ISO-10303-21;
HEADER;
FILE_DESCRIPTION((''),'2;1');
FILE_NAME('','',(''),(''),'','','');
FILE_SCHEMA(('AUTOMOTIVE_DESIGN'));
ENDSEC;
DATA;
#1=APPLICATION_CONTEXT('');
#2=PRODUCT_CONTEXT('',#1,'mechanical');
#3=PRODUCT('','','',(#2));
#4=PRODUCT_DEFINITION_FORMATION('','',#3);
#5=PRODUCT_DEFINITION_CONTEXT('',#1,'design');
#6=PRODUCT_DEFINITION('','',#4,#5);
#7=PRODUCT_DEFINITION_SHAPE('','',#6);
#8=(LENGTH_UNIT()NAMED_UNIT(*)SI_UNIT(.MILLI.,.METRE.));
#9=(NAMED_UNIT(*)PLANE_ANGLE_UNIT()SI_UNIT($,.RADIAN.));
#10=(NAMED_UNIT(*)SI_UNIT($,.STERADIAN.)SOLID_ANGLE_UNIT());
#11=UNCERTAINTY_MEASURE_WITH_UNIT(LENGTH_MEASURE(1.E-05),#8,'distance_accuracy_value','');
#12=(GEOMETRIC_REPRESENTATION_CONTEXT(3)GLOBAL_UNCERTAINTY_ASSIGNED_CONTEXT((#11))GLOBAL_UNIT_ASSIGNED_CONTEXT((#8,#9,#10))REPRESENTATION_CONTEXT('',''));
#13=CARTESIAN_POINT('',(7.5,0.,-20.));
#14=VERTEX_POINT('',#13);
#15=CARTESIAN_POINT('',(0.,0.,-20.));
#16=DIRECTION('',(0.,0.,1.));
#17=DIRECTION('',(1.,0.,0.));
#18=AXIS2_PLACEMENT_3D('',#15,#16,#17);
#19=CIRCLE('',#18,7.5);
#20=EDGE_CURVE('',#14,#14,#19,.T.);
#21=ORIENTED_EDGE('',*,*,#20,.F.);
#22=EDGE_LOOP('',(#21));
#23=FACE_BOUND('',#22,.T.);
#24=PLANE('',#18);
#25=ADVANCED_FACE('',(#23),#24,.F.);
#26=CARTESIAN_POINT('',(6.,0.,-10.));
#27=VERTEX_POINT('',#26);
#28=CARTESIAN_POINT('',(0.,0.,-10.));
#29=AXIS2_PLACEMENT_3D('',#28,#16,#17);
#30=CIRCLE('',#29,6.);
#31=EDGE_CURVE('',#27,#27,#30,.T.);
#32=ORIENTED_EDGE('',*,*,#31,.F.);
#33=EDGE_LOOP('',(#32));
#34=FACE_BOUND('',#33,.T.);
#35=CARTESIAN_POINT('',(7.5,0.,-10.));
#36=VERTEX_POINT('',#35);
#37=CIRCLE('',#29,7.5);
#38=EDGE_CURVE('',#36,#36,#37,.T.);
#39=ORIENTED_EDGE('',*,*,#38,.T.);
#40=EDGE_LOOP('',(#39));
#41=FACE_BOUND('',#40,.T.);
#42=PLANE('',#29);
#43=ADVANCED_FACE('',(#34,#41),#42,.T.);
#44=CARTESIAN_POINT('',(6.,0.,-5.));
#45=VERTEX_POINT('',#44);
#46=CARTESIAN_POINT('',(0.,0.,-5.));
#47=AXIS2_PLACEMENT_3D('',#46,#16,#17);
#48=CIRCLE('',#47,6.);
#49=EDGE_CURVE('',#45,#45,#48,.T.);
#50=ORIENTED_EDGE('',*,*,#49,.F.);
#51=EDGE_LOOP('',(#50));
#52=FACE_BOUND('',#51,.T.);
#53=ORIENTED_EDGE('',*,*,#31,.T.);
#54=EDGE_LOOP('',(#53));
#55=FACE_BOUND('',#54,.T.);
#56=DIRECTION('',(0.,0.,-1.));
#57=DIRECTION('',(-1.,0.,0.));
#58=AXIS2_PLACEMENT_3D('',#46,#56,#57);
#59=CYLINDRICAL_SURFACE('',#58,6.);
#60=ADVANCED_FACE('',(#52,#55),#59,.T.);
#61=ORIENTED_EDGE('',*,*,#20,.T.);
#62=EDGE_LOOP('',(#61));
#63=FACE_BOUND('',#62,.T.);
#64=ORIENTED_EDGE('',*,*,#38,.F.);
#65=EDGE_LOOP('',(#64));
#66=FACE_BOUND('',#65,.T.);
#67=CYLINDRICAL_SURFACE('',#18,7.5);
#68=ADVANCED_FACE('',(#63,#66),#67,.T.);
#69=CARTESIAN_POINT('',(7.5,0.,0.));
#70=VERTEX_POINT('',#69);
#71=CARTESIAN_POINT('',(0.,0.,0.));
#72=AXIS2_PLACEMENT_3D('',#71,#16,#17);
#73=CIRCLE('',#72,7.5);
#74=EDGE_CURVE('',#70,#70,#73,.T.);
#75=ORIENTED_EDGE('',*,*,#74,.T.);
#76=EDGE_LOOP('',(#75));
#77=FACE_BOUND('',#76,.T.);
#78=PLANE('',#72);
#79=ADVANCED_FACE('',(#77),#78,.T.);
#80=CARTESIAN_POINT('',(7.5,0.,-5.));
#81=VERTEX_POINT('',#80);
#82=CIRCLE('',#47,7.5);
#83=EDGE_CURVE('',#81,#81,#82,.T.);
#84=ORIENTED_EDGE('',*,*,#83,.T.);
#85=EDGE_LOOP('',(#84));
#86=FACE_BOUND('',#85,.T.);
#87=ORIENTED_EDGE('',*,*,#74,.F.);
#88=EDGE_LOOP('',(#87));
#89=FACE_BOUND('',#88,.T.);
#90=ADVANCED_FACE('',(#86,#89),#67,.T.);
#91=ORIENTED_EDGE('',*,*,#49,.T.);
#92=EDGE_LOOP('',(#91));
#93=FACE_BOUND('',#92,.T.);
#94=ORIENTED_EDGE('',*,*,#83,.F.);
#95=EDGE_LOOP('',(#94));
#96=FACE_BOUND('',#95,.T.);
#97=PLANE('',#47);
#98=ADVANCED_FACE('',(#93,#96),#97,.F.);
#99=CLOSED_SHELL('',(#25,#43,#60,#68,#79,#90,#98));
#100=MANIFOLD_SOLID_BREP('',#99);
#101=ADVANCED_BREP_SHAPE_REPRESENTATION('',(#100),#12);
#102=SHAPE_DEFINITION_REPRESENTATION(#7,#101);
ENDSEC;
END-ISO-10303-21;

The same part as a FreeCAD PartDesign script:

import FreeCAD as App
import Part
import Sketcher
from FreeCAD import Vector
Q = App.Units.Quantity

doc = App.newDocument("Part")
body = doc.addObject("PartDesign::Body", "Body")

sketch1 = doc.addObject("Sketcher::SketchObject", "Sketch")
body.addObject(sketch1)
sketch1.AttachmentSupport = (doc.XY_Plane, [""])
sketch1.MapMode = "FlatFace"
sketch1.addGeometry(Part.Circle(Vector(0, 0, 0), Vector(0, 0, 1), 8), False)
sketch1.addConstraint([
    Sketcher.Constraint("Coincident", 0, 3, -1, 1),
    Sketcher.Constraint("Diameter", 0, Q("15 mm")),
])
pad1 = doc.addObject("PartDesign::Pad", "Pad")
body.addObject(pad1)
pad1.Profile = sketch1
pad1.Length = 20
pad1.Reversed = True

sketch2 = doc.addObject("Sketcher::SketchObject", "Sketch001")
body.addObject(sketch2)
sketch2.AttachmentSupport = (doc.XY_Plane, [""])
sketch2.MapMode = "FlatFace"
sketch2.AttachmentOffset = App.Placement(Vector(0, 0, -7.5), App.Rotation())
sketch2.addGeometry([
    Part.Circle(Vector(0, 0, 0), Vector(0, 0, 1), 8),
    Part.Circle(Vector(0, 0, 0), Vector(0, 0, 1), 6),
], False)
sketch2.addConstraint([
    Sketcher.Constraint("Coincident", 0, 3, -1, 1),
    Sketcher.Constraint("Coincident", 1, 3, -1, 1),
    Sketcher.Constraint("Diameter", 0, Q("15 mm")),
    Sketcher.Constraint("Diameter", 1, Q("12 mm")),
])
pocket1 = doc.addObject("PartDesign::Pocket", "Pocket")
body.addObject(pocket1)
pocket1.Profile = sketch2
pocket1.Type = "TwoLengths"
pocket1.Length = 2.5
pocket1.Length2 = 2.5
pocket1.Reversed = True

doc.recompute()
